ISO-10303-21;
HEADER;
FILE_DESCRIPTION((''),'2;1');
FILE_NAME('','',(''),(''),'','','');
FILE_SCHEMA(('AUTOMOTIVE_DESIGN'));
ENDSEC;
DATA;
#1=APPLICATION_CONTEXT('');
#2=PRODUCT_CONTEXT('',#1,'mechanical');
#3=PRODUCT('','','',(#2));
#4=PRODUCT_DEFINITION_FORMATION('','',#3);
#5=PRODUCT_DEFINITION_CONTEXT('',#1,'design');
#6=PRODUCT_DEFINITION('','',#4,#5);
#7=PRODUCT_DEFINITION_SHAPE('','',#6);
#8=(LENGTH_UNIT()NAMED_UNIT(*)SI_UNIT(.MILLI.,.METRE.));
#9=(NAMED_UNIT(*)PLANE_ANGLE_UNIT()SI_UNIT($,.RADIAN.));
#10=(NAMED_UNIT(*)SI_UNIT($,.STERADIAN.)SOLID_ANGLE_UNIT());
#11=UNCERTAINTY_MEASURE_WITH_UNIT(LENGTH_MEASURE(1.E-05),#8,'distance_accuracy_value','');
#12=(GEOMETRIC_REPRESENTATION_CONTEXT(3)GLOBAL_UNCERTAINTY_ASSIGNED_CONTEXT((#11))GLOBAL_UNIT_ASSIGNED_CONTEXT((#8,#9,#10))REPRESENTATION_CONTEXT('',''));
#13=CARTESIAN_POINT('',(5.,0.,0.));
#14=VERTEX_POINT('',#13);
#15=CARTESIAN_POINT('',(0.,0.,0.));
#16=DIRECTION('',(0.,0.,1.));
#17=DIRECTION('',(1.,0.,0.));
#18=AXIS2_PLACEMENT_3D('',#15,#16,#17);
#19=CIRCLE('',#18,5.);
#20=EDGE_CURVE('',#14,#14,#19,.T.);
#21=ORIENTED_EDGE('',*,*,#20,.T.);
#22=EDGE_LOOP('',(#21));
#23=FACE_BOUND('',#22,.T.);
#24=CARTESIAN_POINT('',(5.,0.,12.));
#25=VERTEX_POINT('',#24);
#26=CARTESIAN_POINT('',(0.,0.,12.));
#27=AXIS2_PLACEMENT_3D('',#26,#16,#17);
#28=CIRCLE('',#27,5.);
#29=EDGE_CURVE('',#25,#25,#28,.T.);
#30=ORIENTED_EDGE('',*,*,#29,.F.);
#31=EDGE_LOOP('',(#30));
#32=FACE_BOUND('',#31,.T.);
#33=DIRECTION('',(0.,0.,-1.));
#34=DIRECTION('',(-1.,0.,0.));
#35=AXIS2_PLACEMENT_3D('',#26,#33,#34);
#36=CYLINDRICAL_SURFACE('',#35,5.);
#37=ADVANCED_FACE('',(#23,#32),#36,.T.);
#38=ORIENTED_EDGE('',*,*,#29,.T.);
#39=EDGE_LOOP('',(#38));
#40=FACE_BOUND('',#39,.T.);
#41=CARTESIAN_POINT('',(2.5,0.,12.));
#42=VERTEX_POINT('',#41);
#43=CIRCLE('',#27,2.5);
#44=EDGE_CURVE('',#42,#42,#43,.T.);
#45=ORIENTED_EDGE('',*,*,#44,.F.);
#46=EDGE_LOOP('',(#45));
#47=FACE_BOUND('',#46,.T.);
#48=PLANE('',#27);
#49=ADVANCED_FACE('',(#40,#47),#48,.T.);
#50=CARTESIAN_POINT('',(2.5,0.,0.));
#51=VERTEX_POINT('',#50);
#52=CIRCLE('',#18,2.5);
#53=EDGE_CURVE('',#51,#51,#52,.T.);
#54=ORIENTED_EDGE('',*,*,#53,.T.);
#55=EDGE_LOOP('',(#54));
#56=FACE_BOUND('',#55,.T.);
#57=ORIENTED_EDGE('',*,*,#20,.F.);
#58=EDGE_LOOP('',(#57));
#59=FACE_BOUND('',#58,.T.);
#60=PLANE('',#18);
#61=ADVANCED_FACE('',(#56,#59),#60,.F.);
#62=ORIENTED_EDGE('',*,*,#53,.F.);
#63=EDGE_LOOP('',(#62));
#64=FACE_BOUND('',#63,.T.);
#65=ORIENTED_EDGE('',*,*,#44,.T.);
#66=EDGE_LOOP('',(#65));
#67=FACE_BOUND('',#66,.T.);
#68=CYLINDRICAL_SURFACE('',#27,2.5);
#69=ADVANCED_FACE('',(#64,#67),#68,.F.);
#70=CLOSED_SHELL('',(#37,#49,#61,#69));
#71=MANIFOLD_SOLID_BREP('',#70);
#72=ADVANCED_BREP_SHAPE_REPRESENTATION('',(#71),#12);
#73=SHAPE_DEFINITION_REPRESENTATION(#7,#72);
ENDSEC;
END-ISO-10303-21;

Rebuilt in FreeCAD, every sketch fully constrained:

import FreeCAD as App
import Part
import Sketcher
from FreeCAD import Vector
Q = App.Units.Quantity

doc = App.newDocument("Part")
body = doc.addObject("PartDesign::Body", "Body")

# Sketch on XY plane
sketch1 = doc.addObject("Sketcher::SketchObject", "Sketch")
body.addObject(sketch1)
sketch1.AttachmentSupport = (doc.XY_Plane, [""])
sketch1.MapMode = "FlatFace"
sketch1.addGeometry(Part.Circle(Vector(0, 0, 0), Vector(0, 0, 1), 5), False)
sketch1.addConstraint(Sketcher.Constraint("Coincident", 0, 3, -1, 1))
sketch1.addConstraint(Sketcher.Constraint("Diameter", 0, Q("10 mm")))
pad1 = doc.addObject("PartDesign::Pad", "Pad")
body.addObject(pad1)
pad1.Profile = sketch1
pad1.Length = 12

# Sketch on XY plane
sketch2 = doc.addObject("Sketcher::SketchObject", "Sketch001")
body.addObject(sketch2)
sketch2.AttachmentSupport = (doc.XY_Plane, [""])
sketch2.MapMode = "FlatFace"
sketch2.AttachmentOffset = App.Placement(Vector(0, 0, 12), App.Rotation())
sketch2.addGeometry(Part.Circle(Vector(0, 0, 0), Vector(0, 0, 1), 2.5), False)
sketch2.addConstraint(Sketcher.Constraint("Coincident", 0, 3, -1, 1))
sketch2.addConstraint(Sketcher.Constraint("Diameter", 0, Q("5 mm")))
doc.recompute()
hole = doc.addObject("PartDesign::Hole", "Hole")
body.addObject(hole)
hole.Profile = sketch2
hole.ThreadType = "None"
hole.Diameter = 5
hole.DepthType = "Dimension"
hole.Depth = 12
hole.DrillPoint = "Flat"

doc.recompute()
